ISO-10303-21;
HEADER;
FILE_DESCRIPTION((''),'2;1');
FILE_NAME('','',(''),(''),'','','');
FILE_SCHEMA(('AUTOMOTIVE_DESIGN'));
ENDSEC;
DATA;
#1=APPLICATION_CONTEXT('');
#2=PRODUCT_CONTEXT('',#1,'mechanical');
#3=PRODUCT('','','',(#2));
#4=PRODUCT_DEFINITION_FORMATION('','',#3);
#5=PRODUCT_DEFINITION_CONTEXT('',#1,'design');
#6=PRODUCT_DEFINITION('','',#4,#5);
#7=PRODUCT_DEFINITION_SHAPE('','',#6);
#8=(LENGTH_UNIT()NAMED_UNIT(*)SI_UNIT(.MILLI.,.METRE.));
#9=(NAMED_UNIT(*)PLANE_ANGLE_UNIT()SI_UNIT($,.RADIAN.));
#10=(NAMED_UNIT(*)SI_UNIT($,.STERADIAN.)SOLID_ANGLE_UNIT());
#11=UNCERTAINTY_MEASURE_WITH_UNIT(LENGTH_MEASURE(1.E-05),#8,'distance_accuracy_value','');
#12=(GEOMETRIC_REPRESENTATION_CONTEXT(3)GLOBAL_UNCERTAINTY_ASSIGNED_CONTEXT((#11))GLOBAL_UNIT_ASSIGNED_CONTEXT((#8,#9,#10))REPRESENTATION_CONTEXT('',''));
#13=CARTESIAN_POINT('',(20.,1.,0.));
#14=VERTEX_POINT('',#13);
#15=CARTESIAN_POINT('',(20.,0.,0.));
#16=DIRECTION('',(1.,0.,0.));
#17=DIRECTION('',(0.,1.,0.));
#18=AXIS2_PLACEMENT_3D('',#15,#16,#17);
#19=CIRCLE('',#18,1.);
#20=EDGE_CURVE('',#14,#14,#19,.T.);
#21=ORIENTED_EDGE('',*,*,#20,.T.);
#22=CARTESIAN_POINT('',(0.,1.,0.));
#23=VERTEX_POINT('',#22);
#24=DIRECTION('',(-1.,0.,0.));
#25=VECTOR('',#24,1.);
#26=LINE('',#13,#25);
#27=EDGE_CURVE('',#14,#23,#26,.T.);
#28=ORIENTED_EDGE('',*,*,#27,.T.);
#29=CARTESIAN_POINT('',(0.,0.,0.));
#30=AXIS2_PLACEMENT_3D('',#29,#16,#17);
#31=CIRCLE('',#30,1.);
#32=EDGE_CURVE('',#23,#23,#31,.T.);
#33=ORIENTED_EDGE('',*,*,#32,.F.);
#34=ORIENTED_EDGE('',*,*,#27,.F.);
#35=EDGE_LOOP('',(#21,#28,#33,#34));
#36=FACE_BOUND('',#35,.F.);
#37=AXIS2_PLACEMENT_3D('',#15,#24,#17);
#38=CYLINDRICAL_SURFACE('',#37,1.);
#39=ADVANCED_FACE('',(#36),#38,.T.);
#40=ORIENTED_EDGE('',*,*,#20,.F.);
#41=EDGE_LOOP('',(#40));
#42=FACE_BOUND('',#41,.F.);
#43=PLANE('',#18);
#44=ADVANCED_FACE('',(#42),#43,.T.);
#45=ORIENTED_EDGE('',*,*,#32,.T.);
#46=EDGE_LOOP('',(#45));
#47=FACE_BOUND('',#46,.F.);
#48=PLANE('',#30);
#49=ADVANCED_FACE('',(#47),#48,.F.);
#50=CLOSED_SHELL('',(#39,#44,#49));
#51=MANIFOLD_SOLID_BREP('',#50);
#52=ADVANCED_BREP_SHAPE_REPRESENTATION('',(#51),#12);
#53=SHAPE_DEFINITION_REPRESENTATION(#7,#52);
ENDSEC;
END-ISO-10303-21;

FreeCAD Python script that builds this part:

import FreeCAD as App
import Part
import Sketcher

doc = App.newDocument("Part")
body = doc.addObject("PartDesign::Body", "Body")

# Sketch on XY plane
sketch1 = doc.addObject("Sketcher::SketchObject", "Sketch")
body.addObject(sketch1)
sketch1.AttachmentSupport = (doc.XY_Plane, [""])
sketch1.MapMode = "FlatFace"
sketch1.addGeometry([
    Part.LineSegment(App.Vector(0, 1, 0), App.Vector(0, 0, 0)),
    Part.LineSegment(App.Vector(0, 0, 0), App.Vector(20, 0, 0)),
    Part.LineSegment(App.Vector(20, 0, 0), App.Vector(20, 1, 0)),
    Part.LineSegment(App.Vector(20, 1, 0), App.Vector(0, 1, 0)),
], False)
sketch1.addConstraint([
    Sketcher.Constraint("Coincident", 0, 2, 1, 1),
    Sketcher.Constraint("Coincident", 1, 2, 2, 1),
    Sketcher.Constraint("Coincident", 2, 2, 3, 1),
    Sketcher.Constraint("Coincident", 3, 2, 0, 1),
    Sketcher.Constraint("Vertical", 0),
    Sketcher.Constraint("Horizontal", 1),
    Sketcher.Constraint("Vertical", 2),
    Sketcher.Constraint("Horizontal", 3),
    Sketcher.Constraint("Coincident", 0, 2, -1, 1),
    Sketcher.Constraint("DistanceX", 1, 1, 1, 2, 20.0),
    Sketcher.Constraint("DistanceY", 0, 2, 0, 1, 1.0),
])
revolution = doc.addObject("PartDesign::Revolution", "Revolution")
body.addObject(revolution)
revolution.Profile = sketch1
revolution.ReferenceAxis = (sketch1, ["H_Axis"])
revolution.Angle = 360

doc.recompute()
